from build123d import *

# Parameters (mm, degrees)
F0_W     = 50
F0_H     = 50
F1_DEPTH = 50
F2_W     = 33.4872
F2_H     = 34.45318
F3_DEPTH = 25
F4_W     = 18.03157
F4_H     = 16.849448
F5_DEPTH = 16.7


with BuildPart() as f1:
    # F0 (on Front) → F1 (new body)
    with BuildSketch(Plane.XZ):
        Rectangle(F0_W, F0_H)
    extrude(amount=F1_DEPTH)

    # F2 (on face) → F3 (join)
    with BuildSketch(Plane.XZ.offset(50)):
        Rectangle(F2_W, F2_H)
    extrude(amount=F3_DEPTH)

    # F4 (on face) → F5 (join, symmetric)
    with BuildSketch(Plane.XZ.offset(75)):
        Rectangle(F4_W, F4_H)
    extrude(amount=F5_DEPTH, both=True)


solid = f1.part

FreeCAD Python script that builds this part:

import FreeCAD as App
import Part
import Sketcher
from FreeCAD import Vector

doc = App.newDocument("Part")
body = doc.addObject("PartDesign::Body", "Body")

# Sketch on XZ plane
sketch1 = body.newObject("Sketcher::SketchObject", "Sketch")
sketch1.AttachmentSupport = (doc.getObject("XZ_Plane"), [""])
sketch1.MapMode = "FlatFace"
sketch1.addGeometry([
    Part.LineSegment(Vector(-25, 25, 0), Vector(-25, -25, 0)),
    Part.LineSegment(Vector(-25, -25, 0), Vector(25, -25, 0)),
    Part.LineSegment(Vector(25, -25, 0), Vector(25, 25, 0)),
    Part.LineSegment(Vector(25, 25, 0), Vector(-25, 25, 0)),
], False)
sketch1.addConstraint([
    Sketcher.Constraint("Coincident", 0, 2, 1, 1),
    Sketcher.Constraint("Coincident", 1, 2, 2, 1),
    Sketcher.Constraint("Coincident", 2, 2, 3, 1),
    Sketcher.Constraint("Coincident", 3, 2, 0, 1),
    Sketcher.Constraint("Vertical", 0),
    Sketcher.Constraint("Horizontal", 1),
    Sketcher.Constraint("Vertical", 2),
    Sketcher.Constraint("Horizontal", 3),
    Sketcher.Constraint("Symmetric", 0, 2, 2, 2, -1, 1),
    Sketcher.Constraint("Equal", 3, 0),
    Sketcher.Constraint("DistanceX", 1, 1, 1, 2, 50.0),
])
pad1 = body.newObject("PartDesign::Pad", "Pad")
pad1.Profile = sketch1
pad1.Length = 50

# Sketch on XZ plane
sketch2 = body.newObject("Sketcher::SketchObject", "Sketch001")
sketch2.AttachmentSupport = (doc.getObject("XZ_Plane"), [""])
sketch2.MapMode = "FlatFace"
sketch2.AttachmentOffset = App.Placement(Vector(0, 0, 50), App.Rotation())
sketch2.addGeometry([
    Part.LineSegment(Vector(-17, 17, 0), Vector(-17, -17, 0)),
    Part.LineSegment(Vector(-17, -17, 0), Vector(17, -17, 0)),
    Part.LineSegment(Vector(17, -17, 0), Vector(17, 17, 0)),
    Part.LineSegment(Vector(17, 17, 0), Vector(-17, 17, 0)),
], False)
sketch2.addConstraint([
    Sketcher.Constraint("Coincident", 0, 2, 1, 1),
    Sketcher.Constraint("Coincident", 1, 2, 2, 1),
    Sketcher.Constraint("Coincident", 2, 2, 3, 1),
    Sketcher.Constraint("Coincident", 3, 2, 0, 1),
    Sketcher.Constraint("Vertical", 0),
    Sketcher.Constraint("Horizontal", 1),
    Sketcher.Constraint("Vertical", 2),
    Sketcher.Constraint("Horizontal", 3),
    Sketcher.Constraint("Symmetric", 0, 2, 2, 2, -1, 1),
    Sketcher.Constraint("DistanceX", 1, 1, 1, 2, 33.4872),
    Sketcher.Constraint("DistanceY", 0, 2, 0, 1, 34.45318),
])
pad2 = body.newObject("PartDesign::Pad", "Pad001")
pad2.Profile = sketch2
pad2.Length = 25

# Sketch on XZ plane
sketch3 = body.newObject("Sketcher::SketchObject", "Sketch002")
sketch3.AttachmentSupport = (doc.getObject("XZ_Plane"), [""])
sketch3.MapMode = "FlatFace"
sketch3.AttachmentOffset = App.Placement(Vector(0, 0, 75), App.Rotation())
sketch3.addGeometry([
    Part.LineSegment(Vector(-9, 8, 0), Vector(-9, -8, 0)),
    Part.LineSegment(Vector(-9, -8, 0), Vector(9, -8, 0)),
    Part.LineSegment(Vector(9, -8, 0), Vector(9, 8, 0)),
    Part.LineSegment(Vector(9, 8, 0), Vector(-9, 8, 0)),
], False)
sketch3.addConstraint([
    Sketcher.Constraint("Coincident", 0, 2, 1, 1),
    Sketcher.Constraint("Coincident", 1, 2, 2, 1),
    Sketcher.Constraint("Coincident", 2, 2, 3, 1),
    Sketcher.Constraint("Coincident", 3, 2, 0, 1),
    Sketcher.Constraint("Vertical", 0),
    Sketcher.Constraint("Horizontal", 1),
    Sketcher.Constraint("Vertical", 2),
    Sketcher.Constraint("Horizontal", 3),
    Sketcher.Constraint("Symmetric", 0, 2, 2, 2, -1, 1),
    Sketcher.Constraint("DistanceX", 1, 1, 1, 2, 18.03157),
    Sketcher.Constraint("DistanceY", 0, 2, 0, 1, 16.849448),
])
pad3 = body.newObject("PartDesign::Pad", "Pad002")
pad3.Profile = sketch3
pad3.Length = 33.4
pad3.Midplane = True

doc.recompute()
